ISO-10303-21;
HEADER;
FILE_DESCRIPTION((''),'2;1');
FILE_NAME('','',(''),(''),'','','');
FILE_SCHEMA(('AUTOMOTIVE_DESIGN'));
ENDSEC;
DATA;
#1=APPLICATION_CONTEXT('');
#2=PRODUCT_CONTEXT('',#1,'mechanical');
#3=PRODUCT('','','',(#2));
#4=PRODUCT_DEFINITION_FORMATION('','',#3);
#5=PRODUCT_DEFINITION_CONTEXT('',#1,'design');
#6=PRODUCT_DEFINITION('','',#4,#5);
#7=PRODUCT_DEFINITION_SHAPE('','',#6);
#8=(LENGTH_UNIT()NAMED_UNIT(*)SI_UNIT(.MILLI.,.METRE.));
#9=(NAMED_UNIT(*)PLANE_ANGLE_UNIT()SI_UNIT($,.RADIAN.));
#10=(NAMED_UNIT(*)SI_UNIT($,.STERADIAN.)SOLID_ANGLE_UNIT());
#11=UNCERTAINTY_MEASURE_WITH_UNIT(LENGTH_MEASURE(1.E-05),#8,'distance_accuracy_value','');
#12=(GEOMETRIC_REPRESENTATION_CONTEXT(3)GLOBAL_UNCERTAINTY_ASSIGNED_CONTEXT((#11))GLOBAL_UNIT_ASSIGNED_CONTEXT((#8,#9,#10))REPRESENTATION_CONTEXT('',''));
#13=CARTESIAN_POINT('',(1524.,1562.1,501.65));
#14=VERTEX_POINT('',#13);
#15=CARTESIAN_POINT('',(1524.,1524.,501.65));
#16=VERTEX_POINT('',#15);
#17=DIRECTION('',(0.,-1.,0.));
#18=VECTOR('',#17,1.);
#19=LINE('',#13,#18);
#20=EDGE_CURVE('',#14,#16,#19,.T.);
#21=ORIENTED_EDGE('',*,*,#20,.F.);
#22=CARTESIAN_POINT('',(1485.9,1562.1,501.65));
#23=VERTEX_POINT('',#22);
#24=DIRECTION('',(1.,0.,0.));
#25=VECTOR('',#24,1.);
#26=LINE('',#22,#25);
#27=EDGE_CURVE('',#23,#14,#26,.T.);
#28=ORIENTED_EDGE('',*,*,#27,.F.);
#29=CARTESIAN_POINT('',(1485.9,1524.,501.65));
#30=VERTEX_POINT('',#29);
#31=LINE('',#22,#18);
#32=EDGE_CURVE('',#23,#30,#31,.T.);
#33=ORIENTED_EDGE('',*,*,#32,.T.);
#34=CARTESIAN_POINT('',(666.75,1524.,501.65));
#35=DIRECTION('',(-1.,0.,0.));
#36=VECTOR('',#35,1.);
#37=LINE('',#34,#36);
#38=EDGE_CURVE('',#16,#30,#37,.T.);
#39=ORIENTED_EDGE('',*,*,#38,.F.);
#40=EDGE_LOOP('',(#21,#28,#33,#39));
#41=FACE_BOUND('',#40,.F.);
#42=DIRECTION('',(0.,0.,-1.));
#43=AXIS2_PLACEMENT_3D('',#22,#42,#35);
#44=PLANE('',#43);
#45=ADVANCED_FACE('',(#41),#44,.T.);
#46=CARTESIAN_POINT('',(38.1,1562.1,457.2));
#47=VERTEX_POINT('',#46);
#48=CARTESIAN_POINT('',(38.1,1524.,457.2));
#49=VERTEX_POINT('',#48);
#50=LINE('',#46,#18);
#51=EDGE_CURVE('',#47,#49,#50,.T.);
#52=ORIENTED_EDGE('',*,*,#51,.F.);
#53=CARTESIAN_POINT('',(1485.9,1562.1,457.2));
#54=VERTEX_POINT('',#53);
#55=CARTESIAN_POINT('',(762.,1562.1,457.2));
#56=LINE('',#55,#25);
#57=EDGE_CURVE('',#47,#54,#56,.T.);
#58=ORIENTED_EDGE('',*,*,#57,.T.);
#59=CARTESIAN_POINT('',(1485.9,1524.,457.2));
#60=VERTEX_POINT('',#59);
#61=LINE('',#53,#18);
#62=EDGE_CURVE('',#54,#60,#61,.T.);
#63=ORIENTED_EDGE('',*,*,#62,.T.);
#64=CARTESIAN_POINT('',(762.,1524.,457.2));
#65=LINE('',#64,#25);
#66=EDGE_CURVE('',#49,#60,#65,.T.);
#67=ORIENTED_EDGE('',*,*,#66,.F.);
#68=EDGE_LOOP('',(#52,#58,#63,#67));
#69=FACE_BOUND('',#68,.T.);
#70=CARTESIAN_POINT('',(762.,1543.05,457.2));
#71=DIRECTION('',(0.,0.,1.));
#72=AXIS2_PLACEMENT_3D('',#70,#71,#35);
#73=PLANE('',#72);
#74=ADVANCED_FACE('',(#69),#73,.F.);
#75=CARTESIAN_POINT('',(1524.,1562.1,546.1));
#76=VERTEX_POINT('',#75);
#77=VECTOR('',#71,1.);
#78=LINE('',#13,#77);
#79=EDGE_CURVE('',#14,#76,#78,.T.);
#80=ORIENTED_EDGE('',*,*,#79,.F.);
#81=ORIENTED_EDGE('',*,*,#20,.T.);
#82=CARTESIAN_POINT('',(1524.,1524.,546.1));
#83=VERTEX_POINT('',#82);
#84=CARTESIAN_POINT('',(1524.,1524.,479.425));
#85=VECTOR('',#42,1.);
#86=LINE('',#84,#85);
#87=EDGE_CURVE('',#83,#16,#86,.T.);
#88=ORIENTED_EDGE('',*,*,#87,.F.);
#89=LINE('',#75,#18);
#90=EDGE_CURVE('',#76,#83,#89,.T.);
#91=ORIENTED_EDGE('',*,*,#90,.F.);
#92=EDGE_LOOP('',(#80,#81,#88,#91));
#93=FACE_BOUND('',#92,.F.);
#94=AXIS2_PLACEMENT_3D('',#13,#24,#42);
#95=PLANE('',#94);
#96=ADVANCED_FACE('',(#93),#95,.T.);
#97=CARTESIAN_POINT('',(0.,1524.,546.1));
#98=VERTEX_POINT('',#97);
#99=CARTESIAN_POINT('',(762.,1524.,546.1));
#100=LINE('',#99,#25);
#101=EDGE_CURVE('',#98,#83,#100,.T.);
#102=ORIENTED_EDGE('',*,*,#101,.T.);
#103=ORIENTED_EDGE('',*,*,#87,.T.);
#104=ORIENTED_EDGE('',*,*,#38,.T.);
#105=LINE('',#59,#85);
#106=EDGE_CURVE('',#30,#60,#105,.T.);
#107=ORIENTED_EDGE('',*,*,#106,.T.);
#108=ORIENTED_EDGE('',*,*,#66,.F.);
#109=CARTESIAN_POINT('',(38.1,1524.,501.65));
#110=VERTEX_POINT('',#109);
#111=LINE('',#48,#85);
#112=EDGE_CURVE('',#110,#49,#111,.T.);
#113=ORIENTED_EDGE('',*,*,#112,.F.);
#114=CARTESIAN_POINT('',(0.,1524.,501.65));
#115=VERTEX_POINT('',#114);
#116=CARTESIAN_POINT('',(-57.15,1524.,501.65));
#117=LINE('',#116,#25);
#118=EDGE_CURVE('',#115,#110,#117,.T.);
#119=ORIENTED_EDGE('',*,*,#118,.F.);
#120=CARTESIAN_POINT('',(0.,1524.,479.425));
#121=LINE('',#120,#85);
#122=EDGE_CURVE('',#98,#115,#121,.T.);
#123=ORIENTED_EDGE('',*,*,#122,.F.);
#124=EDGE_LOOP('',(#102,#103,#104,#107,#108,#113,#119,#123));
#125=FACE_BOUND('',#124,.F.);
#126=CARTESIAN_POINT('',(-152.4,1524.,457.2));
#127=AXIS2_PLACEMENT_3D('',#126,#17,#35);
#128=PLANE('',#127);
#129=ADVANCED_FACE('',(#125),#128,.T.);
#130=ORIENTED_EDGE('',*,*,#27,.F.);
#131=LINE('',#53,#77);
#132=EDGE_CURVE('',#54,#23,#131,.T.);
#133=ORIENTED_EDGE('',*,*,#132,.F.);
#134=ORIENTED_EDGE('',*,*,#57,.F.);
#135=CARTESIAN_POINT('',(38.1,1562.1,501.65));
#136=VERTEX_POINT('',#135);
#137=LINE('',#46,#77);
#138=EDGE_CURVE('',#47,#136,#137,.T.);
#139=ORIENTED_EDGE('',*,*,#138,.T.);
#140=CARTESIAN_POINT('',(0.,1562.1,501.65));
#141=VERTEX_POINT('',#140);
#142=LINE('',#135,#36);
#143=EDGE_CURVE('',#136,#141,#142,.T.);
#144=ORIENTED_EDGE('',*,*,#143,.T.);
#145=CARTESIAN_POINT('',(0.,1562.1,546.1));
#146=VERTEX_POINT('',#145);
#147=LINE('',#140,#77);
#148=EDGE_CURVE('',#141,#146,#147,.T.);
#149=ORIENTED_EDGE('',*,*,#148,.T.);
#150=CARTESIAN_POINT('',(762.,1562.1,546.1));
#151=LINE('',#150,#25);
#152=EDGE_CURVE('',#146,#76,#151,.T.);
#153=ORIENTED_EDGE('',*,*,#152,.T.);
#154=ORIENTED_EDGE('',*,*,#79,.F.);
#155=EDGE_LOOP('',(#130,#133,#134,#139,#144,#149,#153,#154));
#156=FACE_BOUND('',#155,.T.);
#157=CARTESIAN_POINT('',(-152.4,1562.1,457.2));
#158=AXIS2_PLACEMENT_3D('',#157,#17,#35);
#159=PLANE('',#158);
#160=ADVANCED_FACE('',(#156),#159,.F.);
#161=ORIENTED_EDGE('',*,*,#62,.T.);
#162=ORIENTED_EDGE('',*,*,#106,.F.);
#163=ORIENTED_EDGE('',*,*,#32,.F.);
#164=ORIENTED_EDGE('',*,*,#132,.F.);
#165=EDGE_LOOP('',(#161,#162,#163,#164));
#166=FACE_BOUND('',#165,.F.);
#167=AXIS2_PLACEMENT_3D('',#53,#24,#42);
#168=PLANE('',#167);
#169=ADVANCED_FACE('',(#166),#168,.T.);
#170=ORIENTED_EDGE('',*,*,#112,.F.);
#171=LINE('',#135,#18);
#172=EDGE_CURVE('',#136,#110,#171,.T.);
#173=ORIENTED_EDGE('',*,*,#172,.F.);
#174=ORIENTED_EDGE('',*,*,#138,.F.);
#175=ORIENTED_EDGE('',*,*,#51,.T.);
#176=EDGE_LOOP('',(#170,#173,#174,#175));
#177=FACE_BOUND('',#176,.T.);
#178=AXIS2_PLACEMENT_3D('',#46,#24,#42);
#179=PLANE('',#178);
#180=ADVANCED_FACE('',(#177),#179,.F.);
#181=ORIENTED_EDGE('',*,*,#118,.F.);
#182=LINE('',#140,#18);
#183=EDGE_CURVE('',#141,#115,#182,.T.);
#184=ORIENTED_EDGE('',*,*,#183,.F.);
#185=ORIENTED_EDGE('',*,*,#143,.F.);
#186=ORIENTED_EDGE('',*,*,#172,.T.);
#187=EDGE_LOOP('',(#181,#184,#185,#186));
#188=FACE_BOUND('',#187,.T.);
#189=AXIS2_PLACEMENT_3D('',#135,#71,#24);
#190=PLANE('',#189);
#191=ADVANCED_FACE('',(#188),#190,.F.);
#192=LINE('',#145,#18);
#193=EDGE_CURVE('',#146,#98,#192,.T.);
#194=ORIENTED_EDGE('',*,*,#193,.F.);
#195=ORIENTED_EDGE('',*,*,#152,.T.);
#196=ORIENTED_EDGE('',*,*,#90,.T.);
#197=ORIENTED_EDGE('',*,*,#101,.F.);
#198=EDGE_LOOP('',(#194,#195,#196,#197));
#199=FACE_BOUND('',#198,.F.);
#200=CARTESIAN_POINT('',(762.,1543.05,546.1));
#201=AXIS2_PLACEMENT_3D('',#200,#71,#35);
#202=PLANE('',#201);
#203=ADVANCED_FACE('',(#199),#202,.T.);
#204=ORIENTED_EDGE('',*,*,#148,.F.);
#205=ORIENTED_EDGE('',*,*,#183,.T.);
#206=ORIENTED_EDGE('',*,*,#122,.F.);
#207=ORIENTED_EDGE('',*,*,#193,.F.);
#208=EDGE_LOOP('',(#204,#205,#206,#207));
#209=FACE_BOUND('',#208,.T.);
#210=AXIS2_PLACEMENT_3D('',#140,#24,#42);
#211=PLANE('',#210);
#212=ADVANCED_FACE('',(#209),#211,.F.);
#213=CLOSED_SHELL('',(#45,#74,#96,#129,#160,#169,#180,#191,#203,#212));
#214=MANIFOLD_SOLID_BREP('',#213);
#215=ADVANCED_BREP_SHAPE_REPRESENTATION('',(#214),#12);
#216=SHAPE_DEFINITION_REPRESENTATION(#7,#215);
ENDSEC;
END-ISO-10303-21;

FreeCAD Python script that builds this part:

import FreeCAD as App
import Part
import Sketcher
Q = App.Units.Quantity


def add_polygon(sketch, points):
    """Adds a closed chain of lines whose ends are joined by coincident constraints."""
    first, n = sketch.GeometryCount, len(points)
    for a, b in zip(points, points[1:] + points[:1]):
        sketch.addGeometry(Part.LineSegment(App.Vector(*a, 0), App.Vector(*b, 0)), False)
    for i in range(n):
        sketch.addConstraint(Sketcher.Constraint("Coincident", first + i, 2, first + (i + 1) % n, 1))

doc = App.newDocument("Part")
body = doc.addObject("PartDesign::Body", "Body")

# Sketch on XY plane
sketch1 = body.newObject("Sketcher::SketchObject", "Sketch")
sketch1.AttachmentSupport = (doc.getObject("XY_Plane"), [""])
sketch1.MapMode = "FlatFace"
sketch1.AttachmentOffset = App.Placement(App.Vector(0, 0, 18 * 25.4), App.Rotation())
add_polygon(sketch1, [(-152, 0), (-152, -38), (1676, -38), (1676, 0)])  # lines 0-3
sketch1.addConstraint([
    Sketcher.Constraint("Vertical", 0),
    Sketcher.Constraint("Horizontal", 1),
    Sketcher.Constraint("Vertical", 2),
    Sketcher.Constraint("Horizontal", 3),
    Sketcher.Constraint("PointOnObject", 2, 2, -1),
    Sketcher.Constraint("DistanceX", 1, 1, 1, 2, Q("72 in")),
    Sketcher.Constraint("DistanceY", 0, 2, 0, 1, Q("1.5 in")),
    Sketcher.Constraint("DistanceX", 0, 2, -1, 1, Q("6 in")),
])
pad1 = body.newObject("PartDesign::Pad", "Pad")
pad1.Profile = sketch1
pad1.Length = Q("3.5 in")

# Sketch on XZ plane
sketch2 = body.newObject("Sketcher::SketchObject", "Sketch001")
sketch2.AttachmentSupport = (doc.getObject("XZ_Plane"), [""])
sketch2.MapMode = "FlatFace"
sketch2.AttachmentOffset = App.Placement(App.Vector(0, 0, 1.5 * 25.4), App.Rotation())
add_polygon(sketch2, [(38, 502), (0, 502), (0, 546), (-152, 546), (-152, 457), (38, 457)])  # lines 0-5
add_polygon(sketch2, [(1524, 502), (1486, 502), (1486, 457), (1676, 457), (1676, 546), (1524, 546)])  # lines 6-11
sketch2.addConstraint([
    Sketcher.Constraint("Horizontal", 0),
    Sketcher.Constraint("Vertical", 1),
    Sketcher.Constraint("Horizontal", 2),
    Sketcher.Constraint("Vertical", 3),
    Sketcher.Constraint("Horizontal", 4),
    Sketcher.Constraint("Vertical", 5),
    Sketcher.Constraint("Horizontal", 6),
    Sketcher.Constraint("Vertical", 7),
    Sketcher.Constraint("Horizontal", 8),
    Sketcher.Constraint("Vertical", 9),
    Sketcher.Constraint("Horizontal", 10),
    Sketcher.Constraint("Vertical", 11),
    Sketcher.Constraint("PointOnObject", 0, 2, -2),
    Sketcher.Constraint("Horizontal", 5, 2, 6, 2),
    Sketcher.Constraint("Horizontal", 4, 2, 7, 2),
    Sketcher.Constraint("Horizontal", 2, 2, 9, 2),
    Sketcher.Constraint("Equal", 0, 6),
    Sketcher.Constraint("Equal", 4, 8),
    Sketcher.Constraint("Equal", 1, 5),
    Sketcher.Constraint("DistanceX", 2, 2, 2, 1, Q("6 in")),
    Sketcher.Constraint("DistanceX", 0, 2, 0, 1, Q("1.5 in")),
    Sketcher.Constraint("DistanceY", 3, 2, 3, 1, Q("3.5 in")),
    Sketcher.Constraint("DistanceY", -1, 1, 3, 2, Q("18 in")),
    Sketcher.Constraint("DistanceX", -1, 1, 8, 2, Q("66 in")),
])
pocket1 = body.newObject("PartDesign::Pocket", "Pocket")
pocket1.Profile = sketch2
pocket1.Type = "ThroughAll"
body2 = doc.addObject("PartDesign::Body", "Body001")
doc.recompute()

mirroring = doc.addObject("Part::Mirroring", "Mirroring")
mirroring.Source = body
mirroring.Base = App.Vector(0, 762, 0)
mirroring.Normal = App.Vector(0, 1, 0)
body2.BaseFeature = mirroring
doc.recompute()
body.Visibility = False
mirroring.Visibility = False

doc.recompute()
